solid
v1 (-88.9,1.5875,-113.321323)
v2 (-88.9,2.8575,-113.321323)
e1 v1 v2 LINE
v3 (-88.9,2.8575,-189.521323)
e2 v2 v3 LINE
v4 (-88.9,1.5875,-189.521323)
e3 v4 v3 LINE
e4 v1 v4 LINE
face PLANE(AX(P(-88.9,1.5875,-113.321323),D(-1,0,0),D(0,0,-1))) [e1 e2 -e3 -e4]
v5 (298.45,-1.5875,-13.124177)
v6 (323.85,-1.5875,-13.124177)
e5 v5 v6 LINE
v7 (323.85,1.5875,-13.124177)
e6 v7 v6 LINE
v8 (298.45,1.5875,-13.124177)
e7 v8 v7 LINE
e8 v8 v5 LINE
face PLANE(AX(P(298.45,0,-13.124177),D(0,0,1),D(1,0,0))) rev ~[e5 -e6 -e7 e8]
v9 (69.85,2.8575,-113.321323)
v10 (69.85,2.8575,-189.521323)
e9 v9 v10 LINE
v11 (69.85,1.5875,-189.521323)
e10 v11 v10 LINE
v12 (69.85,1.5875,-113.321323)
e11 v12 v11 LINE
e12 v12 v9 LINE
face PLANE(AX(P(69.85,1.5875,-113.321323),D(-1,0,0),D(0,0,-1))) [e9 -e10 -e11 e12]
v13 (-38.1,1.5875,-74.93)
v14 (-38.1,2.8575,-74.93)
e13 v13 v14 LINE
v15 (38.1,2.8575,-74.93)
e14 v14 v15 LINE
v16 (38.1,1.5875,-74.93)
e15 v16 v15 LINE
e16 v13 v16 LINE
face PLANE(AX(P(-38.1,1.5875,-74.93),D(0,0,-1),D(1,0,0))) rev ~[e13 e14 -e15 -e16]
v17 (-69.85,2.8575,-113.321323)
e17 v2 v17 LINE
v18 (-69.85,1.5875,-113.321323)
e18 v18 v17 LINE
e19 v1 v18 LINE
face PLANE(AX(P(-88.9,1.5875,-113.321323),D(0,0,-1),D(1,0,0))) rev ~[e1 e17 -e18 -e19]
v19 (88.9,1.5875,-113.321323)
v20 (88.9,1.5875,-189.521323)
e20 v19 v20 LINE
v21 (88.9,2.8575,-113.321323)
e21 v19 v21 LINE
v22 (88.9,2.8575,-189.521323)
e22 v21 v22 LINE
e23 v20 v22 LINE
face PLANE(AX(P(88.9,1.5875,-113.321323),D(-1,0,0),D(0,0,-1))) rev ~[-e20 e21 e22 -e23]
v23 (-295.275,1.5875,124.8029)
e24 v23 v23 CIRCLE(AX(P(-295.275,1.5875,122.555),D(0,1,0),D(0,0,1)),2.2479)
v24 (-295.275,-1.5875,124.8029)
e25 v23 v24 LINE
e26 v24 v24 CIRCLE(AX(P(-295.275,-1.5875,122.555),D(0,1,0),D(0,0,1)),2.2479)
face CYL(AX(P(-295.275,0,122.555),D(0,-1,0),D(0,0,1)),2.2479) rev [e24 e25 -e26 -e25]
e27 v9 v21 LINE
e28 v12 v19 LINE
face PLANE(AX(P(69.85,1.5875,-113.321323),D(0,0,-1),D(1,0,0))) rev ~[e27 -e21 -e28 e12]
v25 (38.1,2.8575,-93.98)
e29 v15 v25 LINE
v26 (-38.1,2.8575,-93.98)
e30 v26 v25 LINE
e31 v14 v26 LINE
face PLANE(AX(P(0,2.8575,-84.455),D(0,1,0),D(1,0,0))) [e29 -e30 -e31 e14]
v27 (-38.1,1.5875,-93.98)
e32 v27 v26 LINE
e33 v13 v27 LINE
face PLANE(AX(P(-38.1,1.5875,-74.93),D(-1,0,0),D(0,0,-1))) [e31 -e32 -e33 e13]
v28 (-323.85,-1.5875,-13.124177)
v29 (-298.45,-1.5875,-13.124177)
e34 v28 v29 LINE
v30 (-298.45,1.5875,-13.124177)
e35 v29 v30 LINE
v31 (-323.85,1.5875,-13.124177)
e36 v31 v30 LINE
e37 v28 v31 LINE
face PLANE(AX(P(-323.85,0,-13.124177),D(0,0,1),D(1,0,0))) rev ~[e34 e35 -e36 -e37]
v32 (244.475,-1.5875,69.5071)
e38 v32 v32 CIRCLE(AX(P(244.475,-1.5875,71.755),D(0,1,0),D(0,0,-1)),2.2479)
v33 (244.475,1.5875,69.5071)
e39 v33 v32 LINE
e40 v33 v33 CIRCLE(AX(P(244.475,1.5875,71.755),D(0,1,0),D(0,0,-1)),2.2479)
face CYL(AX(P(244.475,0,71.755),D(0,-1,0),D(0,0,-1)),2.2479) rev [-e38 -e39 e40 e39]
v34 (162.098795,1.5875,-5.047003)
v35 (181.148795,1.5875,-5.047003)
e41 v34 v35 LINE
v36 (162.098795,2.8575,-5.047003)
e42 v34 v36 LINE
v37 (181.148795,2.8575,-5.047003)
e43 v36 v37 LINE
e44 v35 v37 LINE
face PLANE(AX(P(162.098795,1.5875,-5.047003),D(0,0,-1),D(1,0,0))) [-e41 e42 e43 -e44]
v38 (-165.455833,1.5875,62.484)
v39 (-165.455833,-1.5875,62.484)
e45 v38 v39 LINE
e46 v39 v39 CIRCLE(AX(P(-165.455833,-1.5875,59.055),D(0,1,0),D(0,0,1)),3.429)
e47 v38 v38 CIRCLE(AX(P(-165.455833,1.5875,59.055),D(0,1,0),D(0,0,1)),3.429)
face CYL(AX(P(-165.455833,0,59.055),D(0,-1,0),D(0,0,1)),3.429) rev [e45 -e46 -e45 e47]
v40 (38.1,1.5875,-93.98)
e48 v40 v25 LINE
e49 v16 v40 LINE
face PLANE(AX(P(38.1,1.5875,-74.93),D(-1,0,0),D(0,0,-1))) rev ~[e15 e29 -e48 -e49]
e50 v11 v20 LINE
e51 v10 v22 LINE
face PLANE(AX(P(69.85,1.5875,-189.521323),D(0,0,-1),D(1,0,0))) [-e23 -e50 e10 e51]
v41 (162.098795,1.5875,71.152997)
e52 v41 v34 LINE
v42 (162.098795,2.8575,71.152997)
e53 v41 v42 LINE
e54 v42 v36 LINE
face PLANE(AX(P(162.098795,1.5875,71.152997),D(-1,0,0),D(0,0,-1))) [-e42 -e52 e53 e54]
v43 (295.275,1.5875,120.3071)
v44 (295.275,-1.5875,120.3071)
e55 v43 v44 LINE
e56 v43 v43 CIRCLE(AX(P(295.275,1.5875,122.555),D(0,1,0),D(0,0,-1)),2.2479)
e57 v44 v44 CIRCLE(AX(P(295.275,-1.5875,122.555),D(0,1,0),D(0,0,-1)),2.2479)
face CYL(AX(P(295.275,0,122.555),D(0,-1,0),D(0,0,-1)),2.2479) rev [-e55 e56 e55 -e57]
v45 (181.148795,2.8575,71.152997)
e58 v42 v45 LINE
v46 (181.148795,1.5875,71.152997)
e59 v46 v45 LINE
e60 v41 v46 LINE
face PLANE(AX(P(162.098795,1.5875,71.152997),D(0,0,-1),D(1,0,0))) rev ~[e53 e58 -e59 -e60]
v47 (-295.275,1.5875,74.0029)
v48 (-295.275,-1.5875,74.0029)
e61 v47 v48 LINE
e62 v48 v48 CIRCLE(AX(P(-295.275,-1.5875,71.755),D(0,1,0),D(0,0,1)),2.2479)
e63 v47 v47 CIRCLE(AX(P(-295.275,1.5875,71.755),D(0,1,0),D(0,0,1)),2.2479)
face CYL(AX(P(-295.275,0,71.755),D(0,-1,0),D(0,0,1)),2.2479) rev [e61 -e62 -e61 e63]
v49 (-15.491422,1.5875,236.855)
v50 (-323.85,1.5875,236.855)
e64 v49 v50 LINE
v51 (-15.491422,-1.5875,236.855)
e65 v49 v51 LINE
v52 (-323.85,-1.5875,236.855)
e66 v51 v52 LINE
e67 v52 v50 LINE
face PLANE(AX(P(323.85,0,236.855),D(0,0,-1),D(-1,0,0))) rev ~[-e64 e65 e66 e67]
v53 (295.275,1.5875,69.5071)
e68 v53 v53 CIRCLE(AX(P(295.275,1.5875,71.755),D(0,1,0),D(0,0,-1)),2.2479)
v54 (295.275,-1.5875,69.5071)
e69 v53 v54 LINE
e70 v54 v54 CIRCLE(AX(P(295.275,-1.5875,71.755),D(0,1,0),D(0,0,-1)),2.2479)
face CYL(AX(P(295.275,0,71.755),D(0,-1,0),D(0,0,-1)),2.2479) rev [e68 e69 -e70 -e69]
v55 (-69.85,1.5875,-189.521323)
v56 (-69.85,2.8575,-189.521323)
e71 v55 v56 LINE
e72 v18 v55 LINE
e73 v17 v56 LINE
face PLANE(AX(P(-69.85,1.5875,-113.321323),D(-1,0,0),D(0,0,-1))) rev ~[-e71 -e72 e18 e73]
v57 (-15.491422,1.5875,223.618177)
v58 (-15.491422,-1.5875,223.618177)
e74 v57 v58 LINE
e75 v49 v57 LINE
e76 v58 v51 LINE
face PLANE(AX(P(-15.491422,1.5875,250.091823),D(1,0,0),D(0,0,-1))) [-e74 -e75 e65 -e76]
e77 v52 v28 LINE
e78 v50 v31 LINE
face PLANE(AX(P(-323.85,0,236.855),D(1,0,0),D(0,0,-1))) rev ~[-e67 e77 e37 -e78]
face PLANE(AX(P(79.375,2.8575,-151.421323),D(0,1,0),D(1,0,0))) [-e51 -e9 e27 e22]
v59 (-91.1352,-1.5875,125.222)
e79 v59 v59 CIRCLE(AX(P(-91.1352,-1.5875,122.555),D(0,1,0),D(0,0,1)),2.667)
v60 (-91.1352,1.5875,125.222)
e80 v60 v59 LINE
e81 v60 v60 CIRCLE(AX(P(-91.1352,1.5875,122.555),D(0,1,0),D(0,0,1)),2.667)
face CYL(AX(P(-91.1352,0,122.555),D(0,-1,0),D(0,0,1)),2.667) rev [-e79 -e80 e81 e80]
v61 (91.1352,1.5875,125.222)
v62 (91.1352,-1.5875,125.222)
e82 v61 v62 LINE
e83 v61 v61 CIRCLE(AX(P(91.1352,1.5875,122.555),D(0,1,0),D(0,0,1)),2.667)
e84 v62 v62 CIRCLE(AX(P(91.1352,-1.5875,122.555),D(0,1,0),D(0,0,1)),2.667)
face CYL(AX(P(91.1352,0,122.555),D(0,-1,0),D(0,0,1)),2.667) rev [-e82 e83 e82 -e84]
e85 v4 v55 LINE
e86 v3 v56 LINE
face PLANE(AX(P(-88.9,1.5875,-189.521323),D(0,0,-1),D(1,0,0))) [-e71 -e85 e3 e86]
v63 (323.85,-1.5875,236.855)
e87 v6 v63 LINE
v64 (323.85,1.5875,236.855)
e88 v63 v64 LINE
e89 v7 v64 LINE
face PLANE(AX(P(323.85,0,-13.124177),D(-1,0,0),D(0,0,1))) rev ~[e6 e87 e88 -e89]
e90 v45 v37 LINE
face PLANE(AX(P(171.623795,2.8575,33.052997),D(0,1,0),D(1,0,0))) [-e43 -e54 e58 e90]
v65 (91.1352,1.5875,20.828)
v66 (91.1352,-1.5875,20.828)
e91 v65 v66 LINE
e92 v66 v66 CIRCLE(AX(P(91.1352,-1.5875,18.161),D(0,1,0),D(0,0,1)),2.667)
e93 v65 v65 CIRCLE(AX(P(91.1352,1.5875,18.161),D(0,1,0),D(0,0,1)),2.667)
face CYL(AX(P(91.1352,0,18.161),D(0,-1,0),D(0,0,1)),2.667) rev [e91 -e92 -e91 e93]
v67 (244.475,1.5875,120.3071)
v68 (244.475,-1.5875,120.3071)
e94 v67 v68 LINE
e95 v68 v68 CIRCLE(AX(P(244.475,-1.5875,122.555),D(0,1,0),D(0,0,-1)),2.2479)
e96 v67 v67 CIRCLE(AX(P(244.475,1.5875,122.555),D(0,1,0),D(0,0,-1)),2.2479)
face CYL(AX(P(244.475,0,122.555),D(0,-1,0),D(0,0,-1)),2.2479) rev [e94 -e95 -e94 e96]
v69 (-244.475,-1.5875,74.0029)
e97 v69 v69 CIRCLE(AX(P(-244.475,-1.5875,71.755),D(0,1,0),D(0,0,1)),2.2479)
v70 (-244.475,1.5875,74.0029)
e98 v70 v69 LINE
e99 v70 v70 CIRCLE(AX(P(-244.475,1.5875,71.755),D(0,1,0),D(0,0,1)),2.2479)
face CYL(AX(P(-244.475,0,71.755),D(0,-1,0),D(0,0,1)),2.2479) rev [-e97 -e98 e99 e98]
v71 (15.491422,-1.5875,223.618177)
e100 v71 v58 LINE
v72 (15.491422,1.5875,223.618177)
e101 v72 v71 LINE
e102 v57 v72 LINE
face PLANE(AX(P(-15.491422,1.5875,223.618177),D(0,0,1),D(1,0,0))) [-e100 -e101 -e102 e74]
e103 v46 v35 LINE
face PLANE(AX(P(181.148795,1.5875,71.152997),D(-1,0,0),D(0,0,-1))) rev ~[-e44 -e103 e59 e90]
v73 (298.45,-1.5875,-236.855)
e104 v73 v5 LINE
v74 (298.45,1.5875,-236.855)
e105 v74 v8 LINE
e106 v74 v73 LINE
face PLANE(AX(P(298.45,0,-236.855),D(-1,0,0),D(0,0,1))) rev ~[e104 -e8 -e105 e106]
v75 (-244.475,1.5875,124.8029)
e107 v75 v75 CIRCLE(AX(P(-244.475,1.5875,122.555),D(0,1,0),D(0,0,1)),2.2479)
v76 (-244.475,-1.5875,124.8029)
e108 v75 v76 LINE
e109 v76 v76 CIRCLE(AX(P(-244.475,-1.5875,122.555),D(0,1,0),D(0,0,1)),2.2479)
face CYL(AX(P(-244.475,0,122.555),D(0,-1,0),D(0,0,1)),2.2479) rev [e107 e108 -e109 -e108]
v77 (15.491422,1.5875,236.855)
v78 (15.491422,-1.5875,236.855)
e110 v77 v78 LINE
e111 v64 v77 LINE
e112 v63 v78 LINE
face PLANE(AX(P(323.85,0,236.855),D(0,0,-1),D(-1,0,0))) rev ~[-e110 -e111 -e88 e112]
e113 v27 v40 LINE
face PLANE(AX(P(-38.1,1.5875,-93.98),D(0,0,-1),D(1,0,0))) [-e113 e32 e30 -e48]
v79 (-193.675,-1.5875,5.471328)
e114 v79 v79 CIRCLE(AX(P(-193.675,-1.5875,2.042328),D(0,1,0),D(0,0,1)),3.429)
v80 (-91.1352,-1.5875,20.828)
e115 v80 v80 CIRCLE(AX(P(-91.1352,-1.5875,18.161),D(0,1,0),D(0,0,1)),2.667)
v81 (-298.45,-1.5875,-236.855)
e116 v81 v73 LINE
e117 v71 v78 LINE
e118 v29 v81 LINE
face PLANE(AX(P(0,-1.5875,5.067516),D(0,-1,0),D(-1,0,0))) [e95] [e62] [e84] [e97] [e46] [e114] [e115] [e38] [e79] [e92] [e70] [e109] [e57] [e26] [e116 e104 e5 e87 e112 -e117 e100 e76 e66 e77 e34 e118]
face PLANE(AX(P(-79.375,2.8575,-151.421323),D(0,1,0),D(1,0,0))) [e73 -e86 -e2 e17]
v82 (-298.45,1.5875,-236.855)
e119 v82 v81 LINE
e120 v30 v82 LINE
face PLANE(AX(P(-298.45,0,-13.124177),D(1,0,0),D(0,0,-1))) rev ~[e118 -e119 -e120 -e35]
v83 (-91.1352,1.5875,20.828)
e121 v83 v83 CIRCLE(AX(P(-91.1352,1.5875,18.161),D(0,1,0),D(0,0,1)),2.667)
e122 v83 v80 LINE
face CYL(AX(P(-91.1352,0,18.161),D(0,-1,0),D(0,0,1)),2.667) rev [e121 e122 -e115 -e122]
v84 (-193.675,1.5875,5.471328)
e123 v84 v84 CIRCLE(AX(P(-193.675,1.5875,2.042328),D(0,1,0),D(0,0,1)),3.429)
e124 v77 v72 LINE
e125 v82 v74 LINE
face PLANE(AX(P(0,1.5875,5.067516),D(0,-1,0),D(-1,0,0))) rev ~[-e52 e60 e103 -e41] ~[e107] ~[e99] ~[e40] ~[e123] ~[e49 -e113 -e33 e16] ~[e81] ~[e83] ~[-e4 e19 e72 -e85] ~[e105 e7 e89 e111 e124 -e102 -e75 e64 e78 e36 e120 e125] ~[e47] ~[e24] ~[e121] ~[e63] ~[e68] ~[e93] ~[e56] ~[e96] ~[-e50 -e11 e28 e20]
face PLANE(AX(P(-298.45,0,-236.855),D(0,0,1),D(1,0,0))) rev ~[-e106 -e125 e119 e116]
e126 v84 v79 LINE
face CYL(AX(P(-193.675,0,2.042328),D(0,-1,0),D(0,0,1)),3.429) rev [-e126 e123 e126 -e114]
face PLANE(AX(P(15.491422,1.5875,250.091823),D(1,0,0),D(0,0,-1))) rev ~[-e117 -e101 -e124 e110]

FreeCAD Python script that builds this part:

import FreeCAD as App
import Part
import Sketcher
Q = App.Units.Quantity


def add_polygon(sketch, points):
    """Adds a closed chain of lines whose ends are joined by coincident constraints."""
    first, n = sketch.GeometryCount, len(points)
    for a, b in zip(points, points[1:] + points[:1]):
        sketch.addGeometry(Part.LineSegment(App.Vector(*a, 0), App.Vector(*b, 0)), False)
    for i in range(n):
        sketch.addConstraint(Sketcher.Constraint("Coincident", first + i, 2, first + (i + 1) % n, 1))

doc = App.newDocument("Part")
body = doc.addObject("PartDesign::Body", "Body")

# Sketch on XZ plane
sketch1 = body.newObject("Sketcher::SketchObject", "Sketch")
sketch1.AttachmentSupport = (doc.getObject("XZ_Plane"), [""])
sketch1.MapMode = "FlatFace"
add_polygon(sketch1, [(-298.4, -236.9), (-298.4, -13.1), (-323.9, -13.1), (-323.9, 236.9), (323.9, 236.9), (323.9, -13.1), (298.4, -13.1), (298.4, -236.9)])  # lines 0-7
sketch1.addGeometry(Part.Circle(App.Vector(295.3, 122.6, 0), App.Vector(0, 0, 1), 2.2), False)  # 8
sketch1.addGeometry(Part.Circle(App.Vector(244.5, 122.6, 0), App.Vector(0, 0, 1), 2.2), False)  # 9
sketch1.addGeometry(Part.Circle(App.Vector(91.1, 122.6, 0), App.Vector(0, 0, 1), 2.7), False)  # 10
sketch1.addGeometry(Part.Circle(App.Vector(295.3, 71.8, 0), App.Vector(0, 0, 1), 2.2), False)  # 11
sketch1.addGeometry(Part.Circle(App.Vector(244.5, 71.8, 0), App.Vector(0, 0, 1), 2.2), False)  # 12
sketch1.addGeometry(Part.Circle(App.Vector(-91.1, 122.6, 0), App.Vector(0, 0, 1), 2.7), False)  # 13
sketch1.addGeometry(Part.Circle(App.Vector(-244.5, 122.6, 0), App.Vector(0, 0, 1), 2.2), False)  # 14
sketch1.addGeometry(Part.Circle(App.Vector(-295.3, 122.6, 0), App.Vector(0, 0, 1), 2.2), False)  # 15
sketch1.addGeometry(Part.Circle(App.Vector(-244.5, 71.8, 0), App.Vector(0, 0, 1), 2.2), False)  # 16
sketch1.addGeometry(Part.Circle(App.Vector(-295.3, 71.8, 0), App.Vector(0, 0, 1), 2.2), False)  # 17
sketch1.addGeometry(Part.Circle(App.Vector(91.1, 18.2, 0), App.Vector(0, 0, 1), 2.7), False)  # 18
sketch1.addGeometry(Part.Circle(App.Vector(-165.5, 59.1, 0), App.Vector(0, 0, 1), 3.4), False)  # 19
sketch1.addGeometry(Part.Circle(App.Vector(-91.1, 18.2, 0), App.Vector(0, 0, 1), 2.7), False)  # 20
sketch1.addGeometry(Part.Circle(App.Vector(-193.7, 2, 0), App.Vector(0, 0, 1), 3.4), False)  # 21
sketch1.addConstraint(Sketcher.Constraint("Vertical", 0))
sketch1.addConstraint(Sketcher.Constraint("Horizontal", 1))
sketch1.addConstraint(Sketcher.Constraint("Vertical", 2))
sketch1.addConstraint(Sketcher.Constraint("Horizontal", 3))
sketch1.addConstraint(Sketcher.Constraint("Vertical", 4))
sketch1.addConstraint(Sketcher.Constraint("Horizontal", 5))
sketch1.addConstraint(Sketcher.Constraint("Vertical", 6))
sketch1.addConstraint(Sketcher.Constraint("Horizontal", 7))
sketch1.addConstraint(Sketcher.Constraint("Equal", 8, 9))
sketch1.addConstraint(Sketcher.Constraint("Equal", 9, 11))
sketch1.addConstraint(Sketcher.Constraint("Equal", 11, 12))
sketch1.addConstraint(Sketcher.Constraint("Equal", 10, 13))
sketch1.addConstraint(Sketcher.Constraint("Equal", 12, 14))
sketch1.addConstraint(Sketcher.Constraint("Equal", 14, 15))
sketch1.addConstraint(Sketcher.Constraint("Equal", 15, 16))
sketch1.addConstraint(Sketcher.Constraint("Equal", 16, 17))
sketch1.addConstraint(Sketcher.Constraint("Equal", 13, 18))
sketch1.addConstraint(Sketcher.Constraint("Equal", 18, 20))
sketch1.addConstraint(Sketcher.Constraint("Equal", 19, 21))
sketch1.addConstraint(Sketcher.Constraint("Symmetric", 10, 3, 13, 3, -2))
sketch1.addConstraint(Sketcher.Constraint("Symmetric", 9, 3, 14, 3, -2))
sketch1.addConstraint(Sketcher.Constraint("Symmetric", 8, 3, 15, 3, -2))
sketch1.addConstraint(Sketcher.Constraint("Symmetric", 12, 3, 16, 3, -2))
sketch1.addConstraint(Sketcher.Constraint("Symmetric", 11, 3, 17, 3, -2))
sketch1.addConstraint(Sketcher.Constraint("Symmetric", 18, 3, 20, 3, -2))
sketch1.addConstraint(Sketcher.Constraint("Symmetric", 1, 2, 4, 2, -2))
sketch1.addConstraint(Sketcher.Constraint("Horizontal", 8, 3, 9, 3))
sketch1.addConstraint(Sketcher.Constraint("Horizontal", 9, 3, 10, 3))
sketch1.addConstraint(Sketcher.Constraint("Horizontal", 11, 3, 12, 3))
sketch1.addConstraint(Sketcher.Constraint("Vertical", 8, 3, 11, 3))
sketch1.addConstraint(Sketcher.Constraint("Vertical", 9, 3, 12, 3))
sketch1.addConstraint(Sketcher.Constraint("Vertical", 10, 3, 18, 3))
sketch1.addConstraint(Sketcher.Constraint("Equal", 1, 5))
sketch1.addConstraint(Sketcher.Constraint("Diameter", 10, Q("0.21 in")))
sketch1.addConstraint(Sketcher.Constraint("Diameter", 19, Q("0.27 in")))
sketch1.addConstraint(Sketcher.Constraint("DistanceX", 1, 2, 1, 1, Q("1 in")))
sketch1.addConstraint(Sketcher.Constraint("Diameter", 8, Q("0.177 in")))
sketch1.addConstraint(Sketcher.Constraint("DistanceX", 3, 1, 3, 2, Q("25.5 in")))
sketch1.addConstraint(Sketcher.Constraint("DistanceX", 9, 3, 8, 3, Q("2 in")))
sketch1.addConstraint(Sketcher.Constraint("DistanceY", 11, 3, 8, 3, Q("2 in")))
sketch1.addConstraint(Sketcher.Constraint("DistanceX", 16, 3, 21, 3, Q("2 in")))
sketch1.addConstraint(Sketcher.Constraint("DistanceY", 19, 3, 2, 2, Q("7 in")))
sketch1.addConstraint(Sketcher.Constraint("DistanceY", 19, 3, 16, 3, Q("0.5 in")))
sketch1.addConstraint(Sketcher.Constraint("DistanceX", 14, 3, 9, 3, Q("19.25 in")))
sketch1.addConstraint(Sketcher.Constraint("DistanceY", 18, 3, 10, 3, Q("4.11 in")))
sketch1.addConstraint(Sketcher.Constraint("DistanceY", 6, 2, 11, 3, Q("12.15 in")))
sketch1.addConstraint(Sketcher.Constraint("DistanceY", 0, 1, 0, 2, Q("8.8083001 in")))
sketch1.addConstraint(Sketcher.Constraint("DistanceY", -1, 1, 8, 3, Q("4.825 in")))
sketch1.addConstraint(Sketcher.Constraint("DistanceX", -1, 1, 10, 3, Q("3.588 in")))
sketch1.addConstraint(Sketcher.Constraint("DistanceY", -1, 1, 21, 3, 2.042328))
sketch1.addConstraint(Sketcher.Constraint("DistanceX", 19, 3, -1, 1, 165.455833))
pad1 = body.newObject("PartDesign::Pad", "Pad")
pad1.Profile = sketch1
pad1.Length = Q("0.125 in")
pad1.Midplane = True

# Sketch on XZ plane
sketch2 = body.newObject("Sketcher::SketchObject", "Sketch001")
sketch2.AttachmentSupport = (doc.getObject("XZ_Plane"), [""])
sketch2.MapMode = "FlatFace"
sketch2.AttachmentOffset = App.Placement(App.Vector(0, 0, -0.0625 * 25.4), App.Rotation())
add_polygon(sketch2, [(-15, 224), (-15, 250), (15, 250), (15, 224)])  # lines 0-3
sketch2.addConstraint(Sketcher.Constraint("Vertical", 0))
sketch2.addConstraint(Sketcher.Constraint("Horizontal", 1))
sketch2.addConstraint(Sketcher.Constraint("Vertical", 2))
sketch2.addConstraint(Sketcher.Constraint("Horizontal", 3))
sketch2.addConstraint(Sketcher.Constraint("DistanceX", 1, 1, 1, 2, 30.982844))
sketch2.addConstraint(Sketcher.Constraint("DistanceY", 0, 1, 0, 2, 26.473646))
sketch2.addConstraint(Sketcher.Constraint("DistanceX", 0, 2, -1, 1, 15.491422))
sketch2.addConstraint(Sketcher.Constraint("DistanceY", -1, 1, 0, 2, 250.091823))
pocket1 = body.newObject("PartDesign::Pocket", "Pocket")
pocket1.Profile = sketch2
pocket1.Type = "ThroughAll"
pocket1.Reversed = True

# Sketch on XZ plane
sketch3 = body.newObject("Sketcher::SketchObject", "Sketch002")
sketch3.AttachmentSupport = (doc.getObject("XZ_Plane"), [""])
sketch3.MapMode = "FlatFace"
sketch3.AttachmentOffset = App.Placement(App.Vector(0, 0, -0.0625 * 25.4), App.Rotation())
add_polygon(sketch3, [(-38, -94), (-38, -75), (38, -75), (38, -94)])  # lines 0-3
add_polygon(sketch3, [(-89, -190), (-89, -113), (-70, -113), (-70, -190)])  # lines 4-7
add_polygon(sketch3, [(70, -190), (70, -113), (89, -113), (89, -190)])  # lines 8-11
add_polygon(sketch3, [(162, -5), (162, 71), (181, 71), (181, -5)])  # lines 12-15
sketch3.addConstraint(Sketcher.Constraint("Vertical", 0))
sketch3.addConstraint(Sketcher.Constraint("Horizontal", 1))
sketch3.addConstraint(Sketcher.Constraint("Vertical", 2))
sketch3.addConstraint(Sketcher.Constraint("Horizontal", 3))
sketch3.addConstraint(Sketcher.Constraint("Vertical", 4))
sketch3.addConstraint(Sketcher.Constraint("Horizontal", 5))
sketch3.addConstraint(Sketcher.Constraint("Vertical", 6))
sketch3.addConstraint(Sketcher.Constraint("Horizontal", 7))
sketch3.addConstraint(Sketcher.Constraint("Vertical", 8))
sketch3.addConstraint(Sketcher.Constraint("Horizontal", 9))
sketch3.addConstraint(Sketcher.Constraint("Vertical", 10))
sketch3.addConstraint(Sketcher.Constraint("Horizontal", 11))
sketch3.addConstraint(Sketcher.Constraint("Vertical", 12))
sketch3.addConstraint(Sketcher.Constraint("Horizontal", 13))
sketch3.addConstraint(Sketcher.Constraint("Vertical", 14))
sketch3.addConstraint(Sketcher.Constraint("Horizontal", 15))
sketch3.addConstraint(Sketcher.Constraint("Symmetric", 5, 2, 8, 2, -2))
sketch3.addConstraint(Sketcher.Constraint("Symmetric", 7, 2, 10, 2, -2))
sketch3.addConstraint(Sketcher.Constraint("Equal", 11, 13))
sketch3.addConstraint(Sketcher.Constraint("Equal", 15, 0))
sketch3.addConstraint(Sketcher.Constraint("Equal", 3, 4))
sketch3.addConstraint(Sketcher.Constraint("Equal", 10, 12))
sketch3.addConstraint(Sketcher.Constraint("DistanceX", 1, 1, 1, 2, Q("3 in")))
sketch3.addConstraint(Sketcher.Constraint("DistanceX", 4, 2, 3, 2, Q("2 in")))
sketch3.addConstraint(Sketcher.Constraint("DistanceX", 2, 2, 9, 2, Q("2 in")))
sketch3.addConstraint(Sketcher.Constraint("DistanceX", 5, 1, 5, 2, Q("0.75 in")))
sketch3.addConstraint(Sketcher.Constraint("DistanceY", 2, 2, -1, 1, Q("3.7 in")))
sketch3.addConstraint(Sketcher.Constraint("DistanceY", 9, 2, 12, 2, 184.47432))
sketch3.addConstraint(Sketcher.Constraint("DistanceY", 4, 2, -1, 1, 113.321323))
sketch3.addConstraint(Sketcher.Constraint("DistanceX", -1, 1, 12, 2, 162.098795))
pad2 = body.newObject("PartDesign::Pad", "Pad001")
pad2.Profile = sketch3
pad2.Length = Q("0.05 in")
pad2.Reversed = True

doc.recompute()
